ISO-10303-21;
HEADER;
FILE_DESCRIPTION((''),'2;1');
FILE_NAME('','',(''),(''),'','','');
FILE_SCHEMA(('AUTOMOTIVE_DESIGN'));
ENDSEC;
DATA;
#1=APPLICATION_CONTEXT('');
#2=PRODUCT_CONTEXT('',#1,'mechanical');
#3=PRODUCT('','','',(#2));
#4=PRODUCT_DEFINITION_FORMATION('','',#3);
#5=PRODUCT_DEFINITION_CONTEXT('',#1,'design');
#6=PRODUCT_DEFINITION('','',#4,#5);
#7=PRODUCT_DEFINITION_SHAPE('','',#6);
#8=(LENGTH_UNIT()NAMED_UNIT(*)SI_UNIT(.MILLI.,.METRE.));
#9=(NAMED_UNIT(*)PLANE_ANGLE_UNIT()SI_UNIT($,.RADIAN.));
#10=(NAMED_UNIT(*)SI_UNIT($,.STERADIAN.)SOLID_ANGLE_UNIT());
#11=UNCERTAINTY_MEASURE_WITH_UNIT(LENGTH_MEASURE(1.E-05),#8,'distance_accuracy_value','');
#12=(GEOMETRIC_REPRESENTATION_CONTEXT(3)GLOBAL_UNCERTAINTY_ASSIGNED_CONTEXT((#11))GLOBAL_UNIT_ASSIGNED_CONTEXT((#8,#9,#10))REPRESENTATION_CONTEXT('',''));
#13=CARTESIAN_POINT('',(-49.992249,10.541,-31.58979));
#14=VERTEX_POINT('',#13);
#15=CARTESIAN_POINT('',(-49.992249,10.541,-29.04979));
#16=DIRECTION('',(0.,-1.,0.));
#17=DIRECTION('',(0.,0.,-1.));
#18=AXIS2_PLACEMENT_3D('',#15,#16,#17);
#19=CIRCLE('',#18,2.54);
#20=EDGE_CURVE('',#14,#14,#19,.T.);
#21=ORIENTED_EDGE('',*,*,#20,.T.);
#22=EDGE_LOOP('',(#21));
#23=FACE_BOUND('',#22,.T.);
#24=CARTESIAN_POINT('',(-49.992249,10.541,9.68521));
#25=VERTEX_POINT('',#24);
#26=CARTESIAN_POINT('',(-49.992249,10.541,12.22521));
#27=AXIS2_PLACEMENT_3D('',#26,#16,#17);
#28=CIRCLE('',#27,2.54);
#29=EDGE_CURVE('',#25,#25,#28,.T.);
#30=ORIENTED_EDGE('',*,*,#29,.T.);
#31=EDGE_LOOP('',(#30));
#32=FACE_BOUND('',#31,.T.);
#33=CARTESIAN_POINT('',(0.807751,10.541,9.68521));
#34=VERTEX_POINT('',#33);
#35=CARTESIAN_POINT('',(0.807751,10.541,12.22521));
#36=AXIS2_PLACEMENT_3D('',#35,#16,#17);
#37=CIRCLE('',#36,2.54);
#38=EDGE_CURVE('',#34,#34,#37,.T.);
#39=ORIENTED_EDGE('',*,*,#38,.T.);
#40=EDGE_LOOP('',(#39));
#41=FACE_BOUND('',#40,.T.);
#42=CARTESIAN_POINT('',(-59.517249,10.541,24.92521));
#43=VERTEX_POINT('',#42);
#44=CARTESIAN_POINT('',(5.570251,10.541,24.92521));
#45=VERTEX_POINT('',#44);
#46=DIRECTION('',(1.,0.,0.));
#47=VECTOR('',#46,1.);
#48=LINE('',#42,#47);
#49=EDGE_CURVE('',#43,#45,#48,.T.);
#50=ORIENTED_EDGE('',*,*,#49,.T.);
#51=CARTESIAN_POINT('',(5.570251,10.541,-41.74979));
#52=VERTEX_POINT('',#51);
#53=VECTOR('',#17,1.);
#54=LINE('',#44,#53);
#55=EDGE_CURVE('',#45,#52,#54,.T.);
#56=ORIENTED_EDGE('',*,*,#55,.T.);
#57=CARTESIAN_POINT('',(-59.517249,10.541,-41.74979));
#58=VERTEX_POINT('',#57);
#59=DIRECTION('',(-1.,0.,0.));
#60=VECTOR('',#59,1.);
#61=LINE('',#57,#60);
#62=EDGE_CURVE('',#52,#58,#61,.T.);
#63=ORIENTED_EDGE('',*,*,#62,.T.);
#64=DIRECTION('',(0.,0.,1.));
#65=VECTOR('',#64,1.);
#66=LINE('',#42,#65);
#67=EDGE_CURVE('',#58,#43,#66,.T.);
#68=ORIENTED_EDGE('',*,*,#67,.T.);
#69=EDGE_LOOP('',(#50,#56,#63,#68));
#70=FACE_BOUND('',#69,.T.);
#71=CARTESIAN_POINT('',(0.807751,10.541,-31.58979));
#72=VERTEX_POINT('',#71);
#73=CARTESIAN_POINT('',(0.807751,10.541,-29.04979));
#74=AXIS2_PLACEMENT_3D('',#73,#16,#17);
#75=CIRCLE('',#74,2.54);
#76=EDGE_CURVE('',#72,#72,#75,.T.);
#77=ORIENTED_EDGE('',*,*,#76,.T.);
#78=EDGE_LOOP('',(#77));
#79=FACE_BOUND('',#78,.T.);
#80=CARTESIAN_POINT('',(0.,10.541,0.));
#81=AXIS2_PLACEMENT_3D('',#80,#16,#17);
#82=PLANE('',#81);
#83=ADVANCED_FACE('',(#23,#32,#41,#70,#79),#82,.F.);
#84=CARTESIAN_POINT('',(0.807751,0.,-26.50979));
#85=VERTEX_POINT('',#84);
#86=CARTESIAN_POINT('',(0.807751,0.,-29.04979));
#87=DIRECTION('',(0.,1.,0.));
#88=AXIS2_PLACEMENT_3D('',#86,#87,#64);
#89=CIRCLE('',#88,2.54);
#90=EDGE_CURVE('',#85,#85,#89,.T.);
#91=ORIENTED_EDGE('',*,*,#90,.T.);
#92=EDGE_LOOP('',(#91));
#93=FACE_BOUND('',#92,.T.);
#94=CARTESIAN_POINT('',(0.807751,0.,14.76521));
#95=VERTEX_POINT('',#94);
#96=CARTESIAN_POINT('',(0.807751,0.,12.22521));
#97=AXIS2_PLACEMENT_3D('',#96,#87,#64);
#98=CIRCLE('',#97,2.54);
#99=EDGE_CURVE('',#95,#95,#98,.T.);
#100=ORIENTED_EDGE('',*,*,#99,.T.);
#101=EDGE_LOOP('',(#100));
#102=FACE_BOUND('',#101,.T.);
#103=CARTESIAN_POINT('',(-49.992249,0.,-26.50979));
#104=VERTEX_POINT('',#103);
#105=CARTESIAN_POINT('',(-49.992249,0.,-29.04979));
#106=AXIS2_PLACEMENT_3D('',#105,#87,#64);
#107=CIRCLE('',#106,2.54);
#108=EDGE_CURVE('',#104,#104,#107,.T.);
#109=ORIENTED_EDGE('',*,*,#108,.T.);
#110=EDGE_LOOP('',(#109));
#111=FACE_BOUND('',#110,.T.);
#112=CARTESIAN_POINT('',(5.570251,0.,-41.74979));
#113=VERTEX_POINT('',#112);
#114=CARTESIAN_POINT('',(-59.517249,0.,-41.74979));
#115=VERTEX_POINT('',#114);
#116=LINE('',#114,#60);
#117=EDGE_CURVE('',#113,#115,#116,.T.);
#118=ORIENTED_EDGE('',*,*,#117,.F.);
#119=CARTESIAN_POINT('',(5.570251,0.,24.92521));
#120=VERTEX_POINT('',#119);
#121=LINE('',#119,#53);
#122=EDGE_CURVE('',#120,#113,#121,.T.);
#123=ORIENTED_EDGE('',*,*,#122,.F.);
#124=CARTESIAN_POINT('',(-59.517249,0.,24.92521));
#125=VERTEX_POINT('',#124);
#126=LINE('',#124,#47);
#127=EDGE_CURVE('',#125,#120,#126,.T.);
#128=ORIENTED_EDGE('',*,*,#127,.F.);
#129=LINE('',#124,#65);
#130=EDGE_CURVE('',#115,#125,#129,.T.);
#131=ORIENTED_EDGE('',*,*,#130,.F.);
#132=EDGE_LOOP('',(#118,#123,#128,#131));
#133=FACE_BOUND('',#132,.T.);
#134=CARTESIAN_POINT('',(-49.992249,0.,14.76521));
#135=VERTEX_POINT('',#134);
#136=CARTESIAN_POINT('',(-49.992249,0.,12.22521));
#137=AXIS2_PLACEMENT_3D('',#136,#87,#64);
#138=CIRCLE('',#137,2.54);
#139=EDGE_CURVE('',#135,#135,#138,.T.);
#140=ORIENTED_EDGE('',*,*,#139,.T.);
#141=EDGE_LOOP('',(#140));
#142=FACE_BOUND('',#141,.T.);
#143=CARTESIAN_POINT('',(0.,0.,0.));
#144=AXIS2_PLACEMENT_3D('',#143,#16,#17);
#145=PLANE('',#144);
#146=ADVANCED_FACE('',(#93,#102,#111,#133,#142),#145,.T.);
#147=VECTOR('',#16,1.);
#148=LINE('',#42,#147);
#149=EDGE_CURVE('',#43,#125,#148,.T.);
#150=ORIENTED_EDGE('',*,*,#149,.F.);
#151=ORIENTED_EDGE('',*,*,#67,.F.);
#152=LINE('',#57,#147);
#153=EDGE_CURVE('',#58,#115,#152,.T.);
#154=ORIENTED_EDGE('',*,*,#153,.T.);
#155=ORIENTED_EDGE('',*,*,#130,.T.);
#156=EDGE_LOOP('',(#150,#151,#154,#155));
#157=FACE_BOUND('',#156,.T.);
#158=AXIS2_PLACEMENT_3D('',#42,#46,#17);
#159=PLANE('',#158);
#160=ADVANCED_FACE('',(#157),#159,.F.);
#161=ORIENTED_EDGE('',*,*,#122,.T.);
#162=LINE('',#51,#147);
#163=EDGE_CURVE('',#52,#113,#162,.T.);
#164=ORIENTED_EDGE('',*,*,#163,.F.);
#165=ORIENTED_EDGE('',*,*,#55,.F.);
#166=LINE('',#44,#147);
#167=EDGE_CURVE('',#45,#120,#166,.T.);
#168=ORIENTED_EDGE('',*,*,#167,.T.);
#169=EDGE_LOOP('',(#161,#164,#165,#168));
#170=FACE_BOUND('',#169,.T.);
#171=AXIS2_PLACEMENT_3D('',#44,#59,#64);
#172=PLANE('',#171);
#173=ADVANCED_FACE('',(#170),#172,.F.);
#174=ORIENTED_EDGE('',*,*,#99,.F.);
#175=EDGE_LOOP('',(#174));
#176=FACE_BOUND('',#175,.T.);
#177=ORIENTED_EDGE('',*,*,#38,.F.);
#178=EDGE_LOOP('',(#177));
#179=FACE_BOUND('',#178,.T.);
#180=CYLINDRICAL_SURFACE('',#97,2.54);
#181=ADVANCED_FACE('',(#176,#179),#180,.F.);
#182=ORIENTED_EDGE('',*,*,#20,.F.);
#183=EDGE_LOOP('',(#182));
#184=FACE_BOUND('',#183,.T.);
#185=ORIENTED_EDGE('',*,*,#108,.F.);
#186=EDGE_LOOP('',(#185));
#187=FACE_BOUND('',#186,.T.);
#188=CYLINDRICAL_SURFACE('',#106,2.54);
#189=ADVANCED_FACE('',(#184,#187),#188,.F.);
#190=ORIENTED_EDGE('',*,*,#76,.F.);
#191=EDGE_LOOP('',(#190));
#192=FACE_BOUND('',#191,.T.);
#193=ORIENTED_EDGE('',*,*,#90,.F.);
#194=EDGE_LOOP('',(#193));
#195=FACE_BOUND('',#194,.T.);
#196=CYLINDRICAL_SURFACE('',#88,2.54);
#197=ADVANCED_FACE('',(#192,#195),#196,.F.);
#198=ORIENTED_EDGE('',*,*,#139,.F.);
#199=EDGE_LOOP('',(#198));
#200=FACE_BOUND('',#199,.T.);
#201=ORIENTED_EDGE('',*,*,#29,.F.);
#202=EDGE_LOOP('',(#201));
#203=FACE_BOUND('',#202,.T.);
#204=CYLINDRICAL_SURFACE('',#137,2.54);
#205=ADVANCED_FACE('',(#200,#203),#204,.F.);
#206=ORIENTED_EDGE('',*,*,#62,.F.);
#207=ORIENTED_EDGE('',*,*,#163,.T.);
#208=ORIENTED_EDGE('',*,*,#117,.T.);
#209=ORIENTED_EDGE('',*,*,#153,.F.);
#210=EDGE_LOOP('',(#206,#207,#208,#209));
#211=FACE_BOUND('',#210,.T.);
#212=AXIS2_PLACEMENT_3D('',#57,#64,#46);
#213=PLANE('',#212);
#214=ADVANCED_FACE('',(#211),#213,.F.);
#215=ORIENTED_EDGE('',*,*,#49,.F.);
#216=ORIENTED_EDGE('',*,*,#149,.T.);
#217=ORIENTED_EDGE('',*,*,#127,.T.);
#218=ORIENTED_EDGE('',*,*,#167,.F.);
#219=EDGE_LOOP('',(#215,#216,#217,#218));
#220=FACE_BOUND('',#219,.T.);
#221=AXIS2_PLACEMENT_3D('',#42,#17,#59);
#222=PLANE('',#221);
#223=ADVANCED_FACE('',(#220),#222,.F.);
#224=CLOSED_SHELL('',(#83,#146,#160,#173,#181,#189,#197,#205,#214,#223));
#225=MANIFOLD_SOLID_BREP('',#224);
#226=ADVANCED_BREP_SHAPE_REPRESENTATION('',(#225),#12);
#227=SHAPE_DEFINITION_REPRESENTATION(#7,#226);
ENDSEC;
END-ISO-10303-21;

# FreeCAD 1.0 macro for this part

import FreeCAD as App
import Part
import Sketcher

V = App.Vector
Q = App.Units.Quantity

doc = App.newDocument("Part")
body = doc.addObject("PartDesign::Body", "Body")

# Sketch on XZ plane
sketch1 = body.newObject("Sketcher::SketchObject", "Sketch")
sketch1.AttachmentSupport = (doc.getObject("XZ_Plane"), [""])
sketch1.MapMode = "FlatFace"
sketch1.addGeometry(Part.LineSegment(V(-60, -42, 0), V(-60, 25, 0)), False)
sketch1.addGeometry(Part.LineSegment(V(-60, 25, 0), V(6, 25, 0)), False)
sketch1.addGeometry(Part.LineSegment(V(6, 25, 0), V(6, -42, 0)), False)
sketch1.addGeometry(Part.LineSegment(V(6, -42, 0), V(-60, -42, 0)), False)
sketch1.addConstraint(Sketcher.Constraint("Coincident", 0, 2, 1, 1))
sketch1.addConstraint(Sketcher.Constraint("Coincident", 1, 2, 2, 1))
sketch1.addConstraint(Sketcher.Constraint("Coincident", 2, 2, 3, 1))
sketch1.addConstraint(Sketcher.Constraint("Coincident", 3, 2, 0, 1))
sketch1.addConstraint(Sketcher.Constraint("Vertical", 0))
sketch1.addConstraint(Sketcher.Constraint("Horizontal", 1))
sketch1.addConstraint(Sketcher.Constraint("Vertical", 2))
sketch1.addConstraint(Sketcher.Constraint("Horizontal", 3))
sketch1.addConstraint(Sketcher.Constraint("DistanceX", 1, 1, 1, 2, Q("2.5625 in")))
sketch1.addConstraint(Sketcher.Constraint("DistanceY", 0, 1, 0, 2, Q("2.625 in")))
sketch1.addConstraint(Sketcher.Constraint("DistanceX", 0, 2, -1, 1, Q("59.517249 mm")))
sketch1.addConstraint(Sketcher.Constraint("DistanceY", -1, 1, 0, 2, Q("24.92521 mm")))
pad1 = body.newObject("PartDesign::Pad", "Pad")
pad1.Profile = sketch1
pad1.Length = Q("0.415 in")
pad1.Reversed = True

# Sketch on XZ plane
sketch2 = body.newObject("Sketcher::SketchObject", "Sketch001")
sketch2.AttachmentSupport = (doc.getObject("XZ_Plane"), [""])
sketch2.MapMode = "FlatFace"
sketch2.AttachmentOffset = App.Placement(V(0, 0, -0.415 * 25.4), App.Rotation())
sketch2.addGeometry(Part.Circle(V(-50, -29, 0), V(0, 0, 1), 2.5), False)
sketch2.addGeometry(Part.Circle(V(0.8, -29, 0), V(0, 0, 1), 2.5), False)
sketch2.addGeometry(Part.Circle(V(-50, 12.2, 0), V(0, 0, 1), 2.5), False)
sketch2.addGeometry(Part.Circle(V(0.8, 12.2, 0), V(0, 0, 1), 2.5), False)
sketch2.addConstraint(Sketcher.Constraint("Equal", 0, 1))
sketch2.addConstraint(Sketcher.Constraint("Equal", 1, 2))
sketch2.addConstraint(Sketcher.Constraint("Equal", 2, 3))
sketch2.addConstraint(Sketcher.Constraint("Horizontal", 0, 3, 1, 3))
sketch2.addConstraint(Sketcher.Constraint("Horizontal", 2, 3, 3, 3))
sketch2.addConstraint(Sketcher.Constraint("Vertical", 0, 3, 2, 3))
sketch2.addConstraint(Sketcher.Constraint("Vertical", 1, 3, 3, 3))
sketch2.addConstraint(Sketcher.Constraint("Diameter", 0, Q("0.2 in")))
sketch2.addConstraint(Sketcher.Constraint("DistanceX", 0, 3, 1, 3, Q("2 in")))
sketch2.addConstraint(Sketcher.Constraint("DistanceY", 0, 3, 2, 3, Q("1.625 in")))
sketch2.addConstraint(Sketcher.Constraint("DistanceX", 0, 3, -1, 1, Q("49.992249 mm")))
sketch2.addConstraint(Sketcher.Constraint("DistanceY", 0, 3, -1, 1, Q("29.04979 mm")))
pocket1 = body.newObject("PartDesign::Pocket", "Pocket")
pocket1.Profile = sketch2
pocket1.Type = "ThroughAll"
pocket1.Midplane = True

doc.recompute()
